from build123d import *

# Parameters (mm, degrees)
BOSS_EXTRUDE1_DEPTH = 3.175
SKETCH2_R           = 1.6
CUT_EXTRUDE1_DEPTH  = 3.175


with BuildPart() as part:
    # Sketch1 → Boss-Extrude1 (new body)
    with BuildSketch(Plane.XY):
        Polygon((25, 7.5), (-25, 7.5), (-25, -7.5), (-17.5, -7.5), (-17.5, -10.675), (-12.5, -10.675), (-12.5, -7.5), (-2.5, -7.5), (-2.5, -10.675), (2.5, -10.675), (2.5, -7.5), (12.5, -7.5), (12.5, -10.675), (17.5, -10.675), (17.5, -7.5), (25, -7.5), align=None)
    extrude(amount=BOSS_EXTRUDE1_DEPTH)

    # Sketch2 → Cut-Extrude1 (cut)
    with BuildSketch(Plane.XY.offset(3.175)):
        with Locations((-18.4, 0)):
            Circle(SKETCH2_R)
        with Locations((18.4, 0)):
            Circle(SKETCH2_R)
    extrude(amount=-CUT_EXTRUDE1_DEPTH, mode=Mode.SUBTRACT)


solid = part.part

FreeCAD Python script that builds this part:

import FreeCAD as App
import Part
import Sketcher
from FreeCAD import Vector

doc = App.newDocument("Part")
body = doc.addObject("PartDesign::Body", "Body")

sketch1 = body.newObject("Sketcher::SketchObject", "Sketch")
sketch1.AttachmentSupport = (doc.getObject("XY_Plane"), [""])
sketch1.MapMode = "FlatFace"
sketch1.addGeometry(Part.LineSegment(Vector(25, 7.5, 0), Vector(-25, 7.5, 0)), False)
sketch1.addGeometry(Part.LineSegment(Vector(-25, 7.5, 0), Vector(-25, -7.5, 0)), False)
sketch1.addGeometry(Part.LineSegment(Vector(-25, -7.5, 0), Vector(-17.5, -7.5, 0)), False)
sketch1.addGeometry(Part.LineSegment(Vector(-17.5, -7.5, 0), Vector(-17.5, -10.7, 0)), False)
sketch1.addGeometry(Part.LineSegment(Vector(-17.5, -10.7, 0), Vector(-12.5, -10.7, 0)), False)
sketch1.addGeometry(Part.LineSegment(Vector(-12.5, -10.7, 0), Vector(-12.5, -7.5, 0)), False)
sketch1.addGeometry(Part.LineSegment(Vector(-12.5, -7.5, 0), Vector(-2.5, -7.5, 0)), False)
sketch1.addGeometry(Part.LineSegment(Vector(-2.5, -7.5, 0), Vector(-2.5, -10.7, 0)), False)
sketch1.addGeometry(Part.LineSegment(Vector(-2.5, -10.7, 0), Vector(2.5, -10.7, 0)), False)
sketch1.addGeometry(Part.LineSegment(Vector(2.5, -10.7, 0), Vector(2.5, -7.5, 0)), False)
sketch1.addGeometry(Part.LineSegment(Vector(2.5, -7.5, 0), Vector(12.5, -7.5, 0)), False)
sketch1.addGeometry(Part.LineSegment(Vector(12.5, -7.5, 0), Vector(12.5, -10.7, 0)), False)
sketch1.addGeometry(Part.LineSegment(Vector(12.5, -10.7, 0), Vector(17.5, -10.7, 0)), False)
sketch1.addGeometry(Part.LineSegment(Vector(17.5, -10.7, 0), Vector(17.5, -7.5, 0)), False)
sketch1.addGeometry(Part.LineSegment(Vector(17.5, -7.5, 0), Vector(25, -7.5, 0)), False)
sketch1.addGeometry(Part.LineSegment(Vector(25, -7.5, 0), Vector(25, 7.5, 0)), False)
sketch1.addConstraint(Sketcher.Constraint("Coincident", 0, 2, 1, 1))
sketch1.addConstraint(Sketcher.Constraint("Coincident", 1, 2, 2, 1))
sketch1.addConstraint(Sketcher.Constraint("Coincident", 2, 2, 3, 1))
sketch1.addConstraint(Sketcher.Constraint("Coincident", 3, 2, 4, 1))
sketch1.addConstraint(Sketcher.Constraint("Coincident", 4, 2, 5, 1))
sketch1.addConstraint(Sketcher.Constraint("Coincident", 5, 2, 6, 1))
sketch1.addConstraint(Sketcher.Constraint("Coincident", 6, 2, 7, 1))
sketch1.addConstraint(Sketcher.Constraint("Coincident", 7, 2, 8, 1))
sketch1.addConstraint(Sketcher.Constraint("Coincident", 8, 2, 9, 1))
sketch1.addConstraint(Sketcher.Constraint("Coincident", 9, 2, 10, 1))
sketch1.addConstraint(Sketcher.Constraint("Coincident", 10, 2, 11, 1))
sketch1.addConstraint(Sketcher.Constraint("Coincident", 11, 2, 12, 1))
sketch1.addConstraint(Sketcher.Constraint("Coincident", 12, 2, 13, 1))
sketch1.addConstraint(Sketcher.Constraint("Coincident", 13, 2, 14, 1))
sketch1.addConstraint(Sketcher.Constraint("Coincident", 14, 2, 15, 1))
sketch1.addConstraint(Sketcher.Constraint("Coincident", 15, 2, 0, 1))
sketch1.addConstraint(Sketcher.Constraint("Horizontal", 0))
sketch1.addConstraint(Sketcher.Constraint("Vertical", 1))
sketch1.addConstraint(Sketcher.Constraint("Horizontal", 2))
sketch1.addConstraint(Sketcher.Constraint("Vertical", 3))
sketch1.addConstraint(Sketcher.Constraint("Horizontal", 4))
sketch1.addConstraint(Sketcher.Constraint("Vertical", 5))
sketch1.addConstraint(Sketcher.Constraint("Horizontal", 6))
sketch1.addConstraint(Sketcher.Constraint("Vertical", 7))
sketch1.addConstraint(Sketcher.Constraint("Horizontal", 8))
sketch1.addConstraint(Sketcher.Constraint("Vertical", 9))
sketch1.addConstraint(Sketcher.Constraint("Horizontal", 10))
sketch1.addConstraint(Sketcher.Constraint("Vertical", 11))
sketch1.addConstraint(Sketcher.Constraint("Horizontal", 12))
sketch1.addConstraint(Sketcher.Constraint("Vertical", 13))
sketch1.addConstraint(Sketcher.Constraint("Horizontal", 14))
sketch1.addConstraint(Sketcher.Constraint("Vertical", 15))
sketch1.addConstraint(Sketcher.Constraint("Symmetric", 0, 2, 14, 2, -1, 1))
sketch1.addConstraint(Sketcher.Constraint("Symmetric", 6, 2, 9, 2, -2))
sketch1.addConstraint(Sketcher.Constraint("Symmetric", 4, 2, 11, 2, -2))
sketch1.addConstraint(Sketcher.Constraint("Symmetric", 2, 2, 13, 2, -2))
sketch1.addConstraint(Sketcher.Constraint("Horizontal", 2, 2, 5, 2))
sketch1.addConstraint(Sketcher.Constraint("Horizontal", 4, 2, 7, 2))
sketch1.addConstraint(Sketcher.Constraint("Equal", 4, 8))
sketch1.addConstraint(Sketcher.Constraint("DistanceX", 0, 2, 0, 1, 50.0))
sketch1.addConstraint(Sketcher.Constraint("DistanceX", 4, 1, 4, 2, 5.0))
sketch1.addConstraint(Sketcher.Constraint("DistanceX", 6, 1, 6, 2, 10.0))
sketch1.addConstraint(Sketcher.Constraint("DistanceY", 1, 2, 1, 1, 15.0))
sketch1.addConstraint(Sketcher.Constraint("DistanceY", 3, 2, 3, 1, 3.175))
pad1 = body.newObject("PartDesign::Pad", "Pad")
pad1.Profile = sketch1
pad1.Length = 3.175

sketch2 = body.newObject("Sketcher::SketchObject", "Sketch001")
sketch2.AttachmentSupport = (doc.getObject("XY_Plane"), [""])
sketch2.MapMode = "FlatFace"
sketch2.AttachmentOffset = App.Placement(Vector(0, 0, 3.175), App.Rotation())
sketch2.addGeometry(Part.Circle(Vector(-18.4, 0, 0), Vector(0, 0, 1), 1.6), False)
sketch2.addGeometry(Part.Circle(Vector(18.4, 0, 0), Vector(0, 0, 1), 1.6), False)
sketch2.addConstraint(Sketcher.Constraint("Equal", 0, 1))
sketch2.addConstraint(Sketcher.Constraint("Symmetric", 0, 3, 1, 3, -1, 1))
sketch2.addConstraint(Sketcher.Constraint("PointOnObject", 0, 3, -1))
sketch2.addConstraint(Sketcher.Constraint("Diameter", 0, 3.2))
sketch2.addConstraint(Sketcher.Constraint("DistanceX", 0, 3, -1, 1, 18.4))
pocket1 = body.newObject("PartDesign::Pocket", "Pocket")
pocket1.Profile = sketch2
pocket1.Length = 3.175

doc.recompute()
